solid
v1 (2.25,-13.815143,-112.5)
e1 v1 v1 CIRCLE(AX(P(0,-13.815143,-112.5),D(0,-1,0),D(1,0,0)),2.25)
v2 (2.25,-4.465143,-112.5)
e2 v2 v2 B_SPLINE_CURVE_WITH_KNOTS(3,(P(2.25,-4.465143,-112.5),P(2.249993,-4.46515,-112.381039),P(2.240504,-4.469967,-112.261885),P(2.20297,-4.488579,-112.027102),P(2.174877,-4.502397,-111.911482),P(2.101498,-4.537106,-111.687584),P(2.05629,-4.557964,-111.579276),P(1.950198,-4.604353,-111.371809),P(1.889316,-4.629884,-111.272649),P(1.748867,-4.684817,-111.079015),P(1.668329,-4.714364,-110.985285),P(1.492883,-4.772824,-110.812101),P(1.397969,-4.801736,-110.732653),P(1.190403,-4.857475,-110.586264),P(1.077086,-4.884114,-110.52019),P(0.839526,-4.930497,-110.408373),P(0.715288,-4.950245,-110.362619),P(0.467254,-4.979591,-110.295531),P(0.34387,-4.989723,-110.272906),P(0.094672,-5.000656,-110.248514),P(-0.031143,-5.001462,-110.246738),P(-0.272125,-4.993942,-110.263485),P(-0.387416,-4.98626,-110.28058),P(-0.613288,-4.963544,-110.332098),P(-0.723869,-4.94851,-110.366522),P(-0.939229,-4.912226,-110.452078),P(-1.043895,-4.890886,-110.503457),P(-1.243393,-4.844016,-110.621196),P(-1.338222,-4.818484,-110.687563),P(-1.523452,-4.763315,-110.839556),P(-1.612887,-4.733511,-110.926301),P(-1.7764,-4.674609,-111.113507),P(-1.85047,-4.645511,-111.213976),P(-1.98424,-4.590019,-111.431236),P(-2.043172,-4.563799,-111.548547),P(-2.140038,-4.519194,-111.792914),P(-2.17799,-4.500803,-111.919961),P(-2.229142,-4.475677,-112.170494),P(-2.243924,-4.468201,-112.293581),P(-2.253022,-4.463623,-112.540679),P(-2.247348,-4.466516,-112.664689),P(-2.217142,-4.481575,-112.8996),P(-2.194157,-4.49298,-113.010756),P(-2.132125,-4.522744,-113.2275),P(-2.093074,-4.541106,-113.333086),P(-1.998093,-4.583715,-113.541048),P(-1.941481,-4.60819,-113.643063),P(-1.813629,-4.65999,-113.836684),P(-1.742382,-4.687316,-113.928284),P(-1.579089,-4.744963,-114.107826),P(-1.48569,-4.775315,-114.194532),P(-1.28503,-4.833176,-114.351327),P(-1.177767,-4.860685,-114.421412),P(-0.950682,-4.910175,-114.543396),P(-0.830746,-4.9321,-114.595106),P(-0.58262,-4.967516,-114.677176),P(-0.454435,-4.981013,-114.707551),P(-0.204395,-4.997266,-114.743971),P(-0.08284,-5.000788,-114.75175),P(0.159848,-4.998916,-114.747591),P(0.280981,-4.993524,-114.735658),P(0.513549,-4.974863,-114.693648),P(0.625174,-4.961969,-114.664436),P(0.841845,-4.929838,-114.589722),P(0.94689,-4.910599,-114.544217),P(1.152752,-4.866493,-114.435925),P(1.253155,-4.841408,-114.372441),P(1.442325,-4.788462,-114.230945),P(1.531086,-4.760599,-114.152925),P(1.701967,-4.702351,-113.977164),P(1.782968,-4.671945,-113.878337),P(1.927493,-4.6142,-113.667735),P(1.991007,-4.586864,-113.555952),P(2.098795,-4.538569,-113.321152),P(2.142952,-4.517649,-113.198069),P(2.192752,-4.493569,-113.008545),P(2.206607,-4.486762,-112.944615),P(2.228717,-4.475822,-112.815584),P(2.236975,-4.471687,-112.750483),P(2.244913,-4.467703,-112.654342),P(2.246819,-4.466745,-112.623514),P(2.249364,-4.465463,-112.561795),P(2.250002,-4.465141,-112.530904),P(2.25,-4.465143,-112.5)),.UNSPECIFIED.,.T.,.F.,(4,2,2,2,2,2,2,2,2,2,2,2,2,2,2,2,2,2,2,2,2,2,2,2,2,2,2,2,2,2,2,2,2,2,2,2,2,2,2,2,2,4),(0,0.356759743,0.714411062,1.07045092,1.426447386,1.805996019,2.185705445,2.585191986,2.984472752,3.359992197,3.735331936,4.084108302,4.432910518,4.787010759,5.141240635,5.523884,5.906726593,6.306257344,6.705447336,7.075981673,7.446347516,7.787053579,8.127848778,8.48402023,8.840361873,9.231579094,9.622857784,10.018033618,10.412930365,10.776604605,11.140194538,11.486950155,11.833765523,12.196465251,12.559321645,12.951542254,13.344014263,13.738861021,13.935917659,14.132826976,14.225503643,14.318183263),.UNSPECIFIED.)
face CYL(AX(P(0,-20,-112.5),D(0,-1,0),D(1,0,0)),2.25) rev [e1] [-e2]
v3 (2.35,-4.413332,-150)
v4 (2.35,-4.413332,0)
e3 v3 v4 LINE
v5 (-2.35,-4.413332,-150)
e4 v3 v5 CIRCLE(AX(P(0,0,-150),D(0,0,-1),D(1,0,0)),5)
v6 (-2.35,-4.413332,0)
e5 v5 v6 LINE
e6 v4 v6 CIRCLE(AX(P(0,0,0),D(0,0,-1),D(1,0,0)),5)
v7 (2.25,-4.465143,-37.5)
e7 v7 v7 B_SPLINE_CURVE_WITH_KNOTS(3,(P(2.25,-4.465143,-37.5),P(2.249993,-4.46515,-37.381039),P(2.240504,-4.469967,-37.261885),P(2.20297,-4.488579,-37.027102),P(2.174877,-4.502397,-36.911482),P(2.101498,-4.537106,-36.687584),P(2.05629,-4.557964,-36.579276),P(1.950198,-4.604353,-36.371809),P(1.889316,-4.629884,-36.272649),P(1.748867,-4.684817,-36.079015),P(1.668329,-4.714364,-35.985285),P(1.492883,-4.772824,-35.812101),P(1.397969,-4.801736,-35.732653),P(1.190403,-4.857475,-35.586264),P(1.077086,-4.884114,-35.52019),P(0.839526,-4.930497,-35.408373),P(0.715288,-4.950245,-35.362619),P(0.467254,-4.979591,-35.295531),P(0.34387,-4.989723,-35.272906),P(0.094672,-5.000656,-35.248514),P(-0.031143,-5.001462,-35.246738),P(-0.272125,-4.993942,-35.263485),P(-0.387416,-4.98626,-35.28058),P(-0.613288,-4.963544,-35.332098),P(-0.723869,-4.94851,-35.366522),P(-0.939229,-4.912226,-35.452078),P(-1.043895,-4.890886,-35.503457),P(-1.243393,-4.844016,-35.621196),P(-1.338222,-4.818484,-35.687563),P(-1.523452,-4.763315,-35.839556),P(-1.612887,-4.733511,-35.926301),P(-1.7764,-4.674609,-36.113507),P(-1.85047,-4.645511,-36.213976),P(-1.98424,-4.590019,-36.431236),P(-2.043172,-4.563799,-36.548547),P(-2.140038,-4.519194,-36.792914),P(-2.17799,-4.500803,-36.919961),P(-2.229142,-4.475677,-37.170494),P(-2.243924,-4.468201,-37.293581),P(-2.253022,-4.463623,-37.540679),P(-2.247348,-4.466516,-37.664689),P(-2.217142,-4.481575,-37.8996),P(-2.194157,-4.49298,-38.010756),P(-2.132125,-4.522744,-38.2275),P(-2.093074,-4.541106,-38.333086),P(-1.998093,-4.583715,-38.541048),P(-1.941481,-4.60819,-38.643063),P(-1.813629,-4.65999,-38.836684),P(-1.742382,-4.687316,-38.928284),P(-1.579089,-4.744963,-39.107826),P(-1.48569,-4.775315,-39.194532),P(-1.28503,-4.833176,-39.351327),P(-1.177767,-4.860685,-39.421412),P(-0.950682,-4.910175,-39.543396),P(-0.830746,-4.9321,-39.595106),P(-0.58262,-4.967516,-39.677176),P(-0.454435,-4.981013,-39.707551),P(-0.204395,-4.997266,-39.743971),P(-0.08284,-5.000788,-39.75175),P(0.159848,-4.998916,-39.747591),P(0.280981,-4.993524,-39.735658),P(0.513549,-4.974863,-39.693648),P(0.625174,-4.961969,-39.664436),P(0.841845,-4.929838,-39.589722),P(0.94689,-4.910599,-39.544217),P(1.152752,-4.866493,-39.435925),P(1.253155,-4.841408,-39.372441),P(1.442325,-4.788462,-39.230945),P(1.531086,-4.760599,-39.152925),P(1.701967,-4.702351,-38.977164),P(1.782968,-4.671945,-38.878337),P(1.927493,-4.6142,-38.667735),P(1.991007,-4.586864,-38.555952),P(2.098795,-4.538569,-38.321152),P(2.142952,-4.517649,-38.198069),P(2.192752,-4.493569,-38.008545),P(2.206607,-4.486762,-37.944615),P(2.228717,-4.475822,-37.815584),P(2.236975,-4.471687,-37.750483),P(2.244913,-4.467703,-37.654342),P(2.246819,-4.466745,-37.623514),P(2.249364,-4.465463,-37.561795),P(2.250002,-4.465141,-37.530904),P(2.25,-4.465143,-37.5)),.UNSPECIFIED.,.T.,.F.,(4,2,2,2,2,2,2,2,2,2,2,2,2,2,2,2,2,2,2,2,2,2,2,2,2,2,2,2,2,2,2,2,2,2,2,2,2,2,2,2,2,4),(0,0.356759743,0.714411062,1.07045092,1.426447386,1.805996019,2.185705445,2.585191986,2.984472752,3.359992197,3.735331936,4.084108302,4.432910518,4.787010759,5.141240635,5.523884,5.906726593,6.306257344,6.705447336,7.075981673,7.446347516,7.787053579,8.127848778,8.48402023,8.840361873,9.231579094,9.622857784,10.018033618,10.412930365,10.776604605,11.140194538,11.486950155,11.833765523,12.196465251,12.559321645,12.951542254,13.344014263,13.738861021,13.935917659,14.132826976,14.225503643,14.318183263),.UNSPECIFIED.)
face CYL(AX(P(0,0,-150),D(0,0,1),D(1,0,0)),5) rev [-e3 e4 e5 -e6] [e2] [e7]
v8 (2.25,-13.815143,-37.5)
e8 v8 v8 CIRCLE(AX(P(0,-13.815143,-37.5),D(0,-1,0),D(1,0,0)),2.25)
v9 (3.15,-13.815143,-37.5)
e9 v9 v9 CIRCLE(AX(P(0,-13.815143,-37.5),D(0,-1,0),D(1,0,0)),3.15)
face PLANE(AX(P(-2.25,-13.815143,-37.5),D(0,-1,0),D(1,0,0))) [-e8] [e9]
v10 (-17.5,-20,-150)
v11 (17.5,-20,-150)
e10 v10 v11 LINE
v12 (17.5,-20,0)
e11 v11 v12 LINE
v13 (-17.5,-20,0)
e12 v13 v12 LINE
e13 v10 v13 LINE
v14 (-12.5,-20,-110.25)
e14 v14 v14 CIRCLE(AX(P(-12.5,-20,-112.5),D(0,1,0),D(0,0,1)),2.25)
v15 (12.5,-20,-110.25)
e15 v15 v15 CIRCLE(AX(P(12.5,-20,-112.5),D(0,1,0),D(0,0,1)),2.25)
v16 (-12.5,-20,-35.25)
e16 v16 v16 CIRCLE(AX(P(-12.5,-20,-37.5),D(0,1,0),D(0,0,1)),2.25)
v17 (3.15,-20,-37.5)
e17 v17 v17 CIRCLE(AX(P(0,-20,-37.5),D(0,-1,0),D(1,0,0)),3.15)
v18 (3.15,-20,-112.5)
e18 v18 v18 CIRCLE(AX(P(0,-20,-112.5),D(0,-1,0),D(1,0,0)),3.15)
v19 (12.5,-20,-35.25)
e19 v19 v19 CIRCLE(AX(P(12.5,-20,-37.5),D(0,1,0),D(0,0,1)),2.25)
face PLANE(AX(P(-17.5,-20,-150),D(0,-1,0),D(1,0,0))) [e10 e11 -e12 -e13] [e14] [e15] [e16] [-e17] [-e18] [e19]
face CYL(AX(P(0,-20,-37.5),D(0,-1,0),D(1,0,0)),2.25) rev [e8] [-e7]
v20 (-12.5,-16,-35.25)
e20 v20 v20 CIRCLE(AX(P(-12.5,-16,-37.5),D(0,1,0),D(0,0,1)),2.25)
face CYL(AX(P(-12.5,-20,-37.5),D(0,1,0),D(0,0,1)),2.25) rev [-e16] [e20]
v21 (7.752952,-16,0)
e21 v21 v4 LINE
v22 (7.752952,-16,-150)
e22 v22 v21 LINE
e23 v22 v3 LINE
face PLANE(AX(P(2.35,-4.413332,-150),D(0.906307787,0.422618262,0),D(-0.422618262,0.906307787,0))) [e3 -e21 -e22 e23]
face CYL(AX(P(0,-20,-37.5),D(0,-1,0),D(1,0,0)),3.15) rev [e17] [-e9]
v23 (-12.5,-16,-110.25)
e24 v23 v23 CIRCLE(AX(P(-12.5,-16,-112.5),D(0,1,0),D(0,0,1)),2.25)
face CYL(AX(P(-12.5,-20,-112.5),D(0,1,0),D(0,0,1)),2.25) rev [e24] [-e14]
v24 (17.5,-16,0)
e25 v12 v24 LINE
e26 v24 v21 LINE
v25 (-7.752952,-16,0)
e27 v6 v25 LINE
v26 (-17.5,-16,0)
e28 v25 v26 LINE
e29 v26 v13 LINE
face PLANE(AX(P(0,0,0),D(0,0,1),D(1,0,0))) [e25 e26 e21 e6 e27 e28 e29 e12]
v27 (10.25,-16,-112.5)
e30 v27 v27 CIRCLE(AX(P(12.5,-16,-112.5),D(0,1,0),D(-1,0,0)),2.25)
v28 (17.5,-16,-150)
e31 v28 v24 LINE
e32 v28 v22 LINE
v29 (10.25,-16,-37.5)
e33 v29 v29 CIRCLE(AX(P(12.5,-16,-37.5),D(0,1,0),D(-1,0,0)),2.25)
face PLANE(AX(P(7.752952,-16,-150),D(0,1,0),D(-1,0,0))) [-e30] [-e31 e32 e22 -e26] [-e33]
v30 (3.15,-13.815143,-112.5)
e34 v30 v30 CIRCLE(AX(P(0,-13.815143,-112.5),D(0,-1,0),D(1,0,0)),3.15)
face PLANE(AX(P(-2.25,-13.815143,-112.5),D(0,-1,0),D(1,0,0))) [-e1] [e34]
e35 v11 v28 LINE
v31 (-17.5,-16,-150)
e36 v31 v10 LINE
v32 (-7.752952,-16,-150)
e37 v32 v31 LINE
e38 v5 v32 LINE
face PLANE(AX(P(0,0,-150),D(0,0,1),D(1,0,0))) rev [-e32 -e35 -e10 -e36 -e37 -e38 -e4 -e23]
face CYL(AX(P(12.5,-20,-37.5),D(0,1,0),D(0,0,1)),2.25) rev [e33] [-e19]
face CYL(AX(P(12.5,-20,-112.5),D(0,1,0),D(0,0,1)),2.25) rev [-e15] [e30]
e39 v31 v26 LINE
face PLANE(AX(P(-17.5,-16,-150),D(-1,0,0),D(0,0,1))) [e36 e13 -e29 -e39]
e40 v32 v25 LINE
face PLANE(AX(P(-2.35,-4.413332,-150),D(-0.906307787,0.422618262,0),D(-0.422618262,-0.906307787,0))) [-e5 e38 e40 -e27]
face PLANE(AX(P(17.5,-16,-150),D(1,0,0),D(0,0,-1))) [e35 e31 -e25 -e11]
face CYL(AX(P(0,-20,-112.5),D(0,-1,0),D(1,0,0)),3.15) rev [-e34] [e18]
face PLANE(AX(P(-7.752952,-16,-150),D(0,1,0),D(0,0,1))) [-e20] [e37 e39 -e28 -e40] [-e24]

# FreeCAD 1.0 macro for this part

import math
import FreeCAD as App
import Part
import Sketcher

V = App.Vector
Q = App.Units.Quantity

doc = App.newDocument("Part")
body = doc.addObject("PartDesign::Body", "Body")

# Sketch on XY plane
sketch1 = body.newObject("Sketcher::SketchObject", "Sketch")
sketch1.AttachmentSupport = (doc.getObject("XY_Plane"), [""])
sketch1.MapMode = "FlatFace"
sketch1.addGeometry(Part.LineSegment(V(7.8, -16, 0), V(2.4, -4.4, 0)), False)
sketch1.addGeometry(Part.ArcOfCircle(Part.Circle(V(0, 0, 0), V(0, 0, 1), 5), math.radians(-118), math.radians(-62)), False)
sketch1.addGeometry(Part.LineSegment(V(-2.4, -4.4, 0), V(-7.8, -16, 0)), False)
sketch1.addGeometry(Part.LineSegment(V(-7.8, -16, 0), V(-17.5, -16, 0)), False)
sketch1.addGeometry(Part.LineSegment(V(-17.5, -16, 0), V(-17.5, -20, 0)), False)
sketch1.addGeometry(Part.LineSegment(V(-17.5, -20, 0), V(17.5, -20, 0)), False)
sketch1.addGeometry(Part.LineSegment(V(17.5, -20, 0), V(17.5, -16, 0)), False)
sketch1.addGeometry(Part.LineSegment(V(17.5, -16, 0), V(7.8, -16, 0)), False)
sketch1.addConstraint(Sketcher.Constraint("Coincident", 0, 2, 1, 2))
sketch1.addConstraint(Sketcher.Constraint("Coincident", 1, 1, 2, 1))
sketch1.addConstraint(Sketcher.Constraint("Coincident", 2, 2, 3, 1))
sketch1.addConstraint(Sketcher.Constraint("Coincident", 3, 2, 4, 1))
sketch1.addConstraint(Sketcher.Constraint("Coincident", 4, 2, 5, 1))
sketch1.addConstraint(Sketcher.Constraint("Coincident", 5, 2, 6, 1))
sketch1.addConstraint(Sketcher.Constraint("Coincident", 6, 2, 7, 1))
sketch1.addConstraint(Sketcher.Constraint("Coincident", 7, 2, 0, 1))
sketch1.addConstraint(Sketcher.Constraint("Horizontal", 3))
sketch1.addConstraint(Sketcher.Constraint("Vertical", 4))
sketch1.addConstraint(Sketcher.Constraint("Horizontal", 5))
sketch1.addConstraint(Sketcher.Constraint("Vertical", 6))
sketch1.addConstraint(Sketcher.Constraint("Horizontal", 7))
sketch1.addConstraint(Sketcher.Constraint("Coincident", 1, 3, -1, 1))
sketch1.addConstraint(Sketcher.Constraint("Symmetric", 3, 2, 6, 2, -2))
sketch1.addConstraint(Sketcher.Constraint("Horizontal", 0, 2, 1, 1))
sketch1.addConstraint(Sketcher.Constraint("Equal", 3, 7))
sketch1.addConstraint(Sketcher.Constraint("Radius", 1, Q("5 mm")))
sketch1.addConstraint(Sketcher.Constraint("DistanceX", 5, 1, 5, 2, Q("35 mm")))
sketch1.addConstraint(Sketcher.Constraint("DistanceY", 4, 2, 4, 1, Q("4 mm")))
sketch1.addConstraint(Sketcher.Constraint("Angle", 0, Q("115 deg")))
sketch1.addConstraint(Sketcher.Constraint("DistanceY", 2, 2, -1, 1, Q("16 mm")))
sketch1.addConstraint(Sketcher.Constraint("DistanceX", 1, 1, 0, 2, Q("4.7 mm")))
pad1 = body.newObject("PartDesign::Pad", "Pad")
pad1.Profile = sketch1
pad1.Length = 150
pad1.Reversed = True

# Sketch on XZ plane
sketch2 = body.newObject("Sketcher::SketchObject", "Sketch001")
sketch2.AttachmentSupport = (doc.getObject("XZ_Plane"), [""])
sketch2.MapMode = "FlatFace"
sketch2.addGeometry(Part.Circle(V(12.5, -37.5, 0), V(0, 0, 1), 2.2), False)
sketch2.addGeometry(Part.Circle(V(-12.5, -37.5, 0), V(0, 0, 1), 2.2), False)
sketch2.addConstraint(Sketcher.Constraint("Equal", 0, 1))
sketch2.addConstraint(Sketcher.Constraint("Symmetric", 0, 3, 1, 3, -2))
sketch2.addConstraint(Sketcher.Constraint("Diameter", 0, Q("4.5 mm")))
sketch2.addConstraint(Sketcher.Constraint("DistanceX", 1, 3, 0, 3, Q("25 mm")))
sketch2.addConstraint(Sketcher.Constraint("DistanceY", 0, 3, -1, 1, Q("37.5 mm")))
pocket1 = body.newObject("PartDesign::Pocket", "Pocket")
pocket1.Profile = sketch2
pocket1.Length = 20
pocket1.Reversed = True

# Sketch on XY plane
sketch3 = body.newObject("Sketcher::SketchObject", "Sketch002")
sketch3.AttachmentSupport = (doc.getObject("XY_Plane"), [""])
sketch3.MapMode = "FlatFace"
sketch3.AttachmentOffset = App.Placement(V(0, 0, -37.5), App.Rotation())
sketch3.addGeometry(Part.LineSegment(V(-2.2, -4.5, 0), V(-2.2, -13.8, 0)), False)
sketch3.addGeometry(Part.LineSegment(V(-2.2, -13.8, 0), V(-3.1, -13.8, 0)), False)
sketch3.addGeometry(Part.LineSegment(V(-3.1, -13.8, 0), V(-3.1, -20, 0)), False)
sketch3.addGeometry(Part.LineSegment(V(-3.1, -20, 0), V(0, -20, 0)), False)
sketch3.addGeometry(Part.LineSegment(V(0, -20, 0), V(0, -4.5, 0)), False)
sketch3.addGeometry(Part.LineSegment(V(0, -4.5, 0), V(-2.2, -4.5, 0)), False)
sketch3.addConstraint(Sketcher.Constraint("Coincident", 0, 2, 1, 1))
sketch3.addConstraint(Sketcher.Constraint("Coincident", 1, 2, 2, 1))
sketch3.addConstraint(Sketcher.Constraint("Coincident", 2, 2, 3, 1))
sketch3.addConstraint(Sketcher.Constraint("Coincident", 3, 2, 4, 1))
sketch3.addConstraint(Sketcher.Constraint("Coincident", 4, 2, 5, 1))
sketch3.addConstraint(Sketcher.Constraint("Coincident", 5, 2, 0, 1))
sketch3.addConstraint(Sketcher.Constraint("Vertical", 0))
sketch3.addConstraint(Sketcher.Constraint("Horizontal", 1))
sketch3.addConstraint(Sketcher.Constraint("Vertical", 2))
sketch3.addConstraint(Sketcher.Constraint("Horizontal", 3))
sketch3.addConstraint(Sketcher.Constraint("Vertical", 4))
sketch3.addConstraint(Sketcher.Constraint("Horizontal", 5))
sketch3.addConstraint(Sketcher.Constraint("PointOnObject", 3, 2, -2))
sketch3.addConstraint(Sketcher.Constraint("DistanceX", 1, 2, 1, 1, Q("0.9 mm")))
sketch3.addConstraint(Sketcher.Constraint("DistanceY", 2, 2, -1, 1, Q("20 mm")))
sketch3.addConstraint(Sketcher.Constraint("DistanceX", 3, 1, 3, 2, Q("3.15 mm")))
sketch3.addConstraint(Sketcher.Constraint("DistanceY", 0, 2, 0, 1, Q("9.35 mm")))
sketch3.addConstraint(Sketcher.Constraint("DistanceY", 2, 2, 2, 1, Q("6.184857 mm")))
groove = body.newObject("PartDesign::Groove", "Groove")
groove.Profile = sketch3
groove.ReferenceAxis = (sketch3, ["V_Axis"])
groove.Angle = 360
doc.recompute()

linearpattern = body.newObject("PartDesign::LinearPattern", "LinearPattern")
linearpattern.Originals = [pocket1, groove]
linearpattern.Direction = (doc.getObject("Z_Axis"), [""])
linearpattern.Mode = "offset"
linearpattern.Offset = 75
linearpattern.Occurrences = 2
linearpattern.Reversed = True
body.Tip = linearpattern

doc.recompute()
